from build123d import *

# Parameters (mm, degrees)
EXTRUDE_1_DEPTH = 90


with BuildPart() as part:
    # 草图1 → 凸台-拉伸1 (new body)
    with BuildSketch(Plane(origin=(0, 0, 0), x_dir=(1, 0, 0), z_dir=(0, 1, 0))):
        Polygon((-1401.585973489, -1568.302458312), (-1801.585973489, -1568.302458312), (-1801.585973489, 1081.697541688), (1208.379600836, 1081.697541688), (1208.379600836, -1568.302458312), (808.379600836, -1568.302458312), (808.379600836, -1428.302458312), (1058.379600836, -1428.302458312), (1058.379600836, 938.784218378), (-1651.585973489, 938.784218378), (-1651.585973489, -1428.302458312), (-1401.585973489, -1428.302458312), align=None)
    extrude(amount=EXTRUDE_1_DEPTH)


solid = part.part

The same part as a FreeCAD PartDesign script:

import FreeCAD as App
import Part
import Sketcher
from FreeCAD import Vector

doc = App.newDocument("Part")
body = doc.addObject("PartDesign::Body", "Body")

sketch1 = body.newObject("Sketcher::SketchObject", "Sketch")
sketch1.AttachmentSupport = (doc.getObject("XZ_Plane"), [""])
sketch1.MapMode = "FlatFace"
sketch1.addGeometry([
    Part.LineSegment(Vector(-1802, 1568, 0), Vector(-1402, 1568, 0)),
    Part.LineSegment(Vector(-1402, 1568, 0), Vector(-1402, 1428, 0)),
    Part.LineSegment(Vector(-1402, 1428, 0), Vector(-1652, 1428, 0)),
    Part.LineSegment(Vector(-1652, 1428, 0), Vector(-1652, -939, 0)),
    Part.LineSegment(Vector(-1652, -939, 0), Vector(1058, -939, 0)),
    Part.LineSegment(Vector(1058, -939, 0), Vector(1058, 1428, 0)),
    Part.LineSegment(Vector(1058, 1428, 0), Vector(808, 1428, 0)),
    Part.LineSegment(Vector(808, 1428, 0), Vector(808, 1568, 0)),
    Part.LineSegment(Vector(808, 1568, 0), Vector(1208, 1568, 0)),
    Part.LineSegment(Vector(1208, 1568, 0), Vector(1208, -1082, 0)),
    Part.LineSegment(Vector(1208, -1082, 0), Vector(-1802, -1082, 0)),
    Part.LineSegment(Vector(-1802, -1082, 0), Vector(-1802, 1568, 0)),
], False)
sketch1.addConstraint([
    Sketcher.Constraint("Coincident", 0, 2, 1, 1),
    Sketcher.Constraint("Coincident", 1, 2, 2, 1),
    Sketcher.Constraint("Coincident", 2, 2, 3, 1),
    Sketcher.Constraint("Coincident", 3, 2, 4, 1),
    Sketcher.Constraint("Coincident", 4, 2, 5, 1),
    Sketcher.Constraint("Coincident", 5, 2, 6, 1),
    Sketcher.Constraint("Coincident", 6, 2, 7, 1),
    Sketcher.Constraint("Coincident", 7, 2, 8, 1),
    Sketcher.Constraint("Coincident", 8, 2, 9, 1),
    Sketcher.Constraint("Coincident", 9, 2, 10, 1),
    Sketcher.Constraint("Coincident", 10, 2, 11, 1),
    Sketcher.Constraint("Coincident", 11, 2, 0, 1),
    Sketcher.Constraint("Horizontal", 0),
    Sketcher.Constraint("Vertical", 1),
    Sketcher.Constraint("Horizontal", 2),
    Sketcher.Constraint("Vertical", 3),
    Sketcher.Constraint("Horizontal", 4),
    Sketcher.Constraint("Vertical", 5),
    Sketcher.Constraint("Horizontal", 6),
    Sketcher.Constraint("Vertical", 7),
    Sketcher.Constraint("Horizontal", 8),
    Sketcher.Constraint("Vertical", 9),
    Sketcher.Constraint("Horizontal", 10),
    Sketcher.Constraint("Vertical", 11),
    Sketcher.Constraint("Horizontal", 2, 2, 5, 2),
    Sketcher.Constraint("Horizontal", 0, 2, 7, 2),
    Sketcher.Constraint("Equal", 2, 6),
    Sketcher.Constraint("Equal", 0, 8),
    Sketcher.Constraint("DistanceX", 0, 1, 0, 2, 400.0),
    Sketcher.Constraint("DistanceX", 2, 2, 2, 1, 250.0),
    Sketcher.Constraint("DistanceY", 1, 2, 1, 1, 140.0),
    Sketcher.Constraint("DistanceY", 9, 2, 9, 1, 2650.0),
    Sketcher.Constraint("DistanceX", -1, 1, 4, 2, 1058.379601),
    Sketcher.Constraint("DistanceX", 4, 1, 4, 2, 2709.965574),
    Sketcher.Constraint("DistanceY", 3, 2, 3, 1, 2367.086677),
    Sketcher.Constraint("DistanceY", -1, 1, 0, 2, 1568.302458),
])
pad1 = body.newObject("PartDesign::Pad", "Pad")
pad1.Profile = sketch1
pad1.Length = 90
pad1.Reversed = True

doc.recompute()
